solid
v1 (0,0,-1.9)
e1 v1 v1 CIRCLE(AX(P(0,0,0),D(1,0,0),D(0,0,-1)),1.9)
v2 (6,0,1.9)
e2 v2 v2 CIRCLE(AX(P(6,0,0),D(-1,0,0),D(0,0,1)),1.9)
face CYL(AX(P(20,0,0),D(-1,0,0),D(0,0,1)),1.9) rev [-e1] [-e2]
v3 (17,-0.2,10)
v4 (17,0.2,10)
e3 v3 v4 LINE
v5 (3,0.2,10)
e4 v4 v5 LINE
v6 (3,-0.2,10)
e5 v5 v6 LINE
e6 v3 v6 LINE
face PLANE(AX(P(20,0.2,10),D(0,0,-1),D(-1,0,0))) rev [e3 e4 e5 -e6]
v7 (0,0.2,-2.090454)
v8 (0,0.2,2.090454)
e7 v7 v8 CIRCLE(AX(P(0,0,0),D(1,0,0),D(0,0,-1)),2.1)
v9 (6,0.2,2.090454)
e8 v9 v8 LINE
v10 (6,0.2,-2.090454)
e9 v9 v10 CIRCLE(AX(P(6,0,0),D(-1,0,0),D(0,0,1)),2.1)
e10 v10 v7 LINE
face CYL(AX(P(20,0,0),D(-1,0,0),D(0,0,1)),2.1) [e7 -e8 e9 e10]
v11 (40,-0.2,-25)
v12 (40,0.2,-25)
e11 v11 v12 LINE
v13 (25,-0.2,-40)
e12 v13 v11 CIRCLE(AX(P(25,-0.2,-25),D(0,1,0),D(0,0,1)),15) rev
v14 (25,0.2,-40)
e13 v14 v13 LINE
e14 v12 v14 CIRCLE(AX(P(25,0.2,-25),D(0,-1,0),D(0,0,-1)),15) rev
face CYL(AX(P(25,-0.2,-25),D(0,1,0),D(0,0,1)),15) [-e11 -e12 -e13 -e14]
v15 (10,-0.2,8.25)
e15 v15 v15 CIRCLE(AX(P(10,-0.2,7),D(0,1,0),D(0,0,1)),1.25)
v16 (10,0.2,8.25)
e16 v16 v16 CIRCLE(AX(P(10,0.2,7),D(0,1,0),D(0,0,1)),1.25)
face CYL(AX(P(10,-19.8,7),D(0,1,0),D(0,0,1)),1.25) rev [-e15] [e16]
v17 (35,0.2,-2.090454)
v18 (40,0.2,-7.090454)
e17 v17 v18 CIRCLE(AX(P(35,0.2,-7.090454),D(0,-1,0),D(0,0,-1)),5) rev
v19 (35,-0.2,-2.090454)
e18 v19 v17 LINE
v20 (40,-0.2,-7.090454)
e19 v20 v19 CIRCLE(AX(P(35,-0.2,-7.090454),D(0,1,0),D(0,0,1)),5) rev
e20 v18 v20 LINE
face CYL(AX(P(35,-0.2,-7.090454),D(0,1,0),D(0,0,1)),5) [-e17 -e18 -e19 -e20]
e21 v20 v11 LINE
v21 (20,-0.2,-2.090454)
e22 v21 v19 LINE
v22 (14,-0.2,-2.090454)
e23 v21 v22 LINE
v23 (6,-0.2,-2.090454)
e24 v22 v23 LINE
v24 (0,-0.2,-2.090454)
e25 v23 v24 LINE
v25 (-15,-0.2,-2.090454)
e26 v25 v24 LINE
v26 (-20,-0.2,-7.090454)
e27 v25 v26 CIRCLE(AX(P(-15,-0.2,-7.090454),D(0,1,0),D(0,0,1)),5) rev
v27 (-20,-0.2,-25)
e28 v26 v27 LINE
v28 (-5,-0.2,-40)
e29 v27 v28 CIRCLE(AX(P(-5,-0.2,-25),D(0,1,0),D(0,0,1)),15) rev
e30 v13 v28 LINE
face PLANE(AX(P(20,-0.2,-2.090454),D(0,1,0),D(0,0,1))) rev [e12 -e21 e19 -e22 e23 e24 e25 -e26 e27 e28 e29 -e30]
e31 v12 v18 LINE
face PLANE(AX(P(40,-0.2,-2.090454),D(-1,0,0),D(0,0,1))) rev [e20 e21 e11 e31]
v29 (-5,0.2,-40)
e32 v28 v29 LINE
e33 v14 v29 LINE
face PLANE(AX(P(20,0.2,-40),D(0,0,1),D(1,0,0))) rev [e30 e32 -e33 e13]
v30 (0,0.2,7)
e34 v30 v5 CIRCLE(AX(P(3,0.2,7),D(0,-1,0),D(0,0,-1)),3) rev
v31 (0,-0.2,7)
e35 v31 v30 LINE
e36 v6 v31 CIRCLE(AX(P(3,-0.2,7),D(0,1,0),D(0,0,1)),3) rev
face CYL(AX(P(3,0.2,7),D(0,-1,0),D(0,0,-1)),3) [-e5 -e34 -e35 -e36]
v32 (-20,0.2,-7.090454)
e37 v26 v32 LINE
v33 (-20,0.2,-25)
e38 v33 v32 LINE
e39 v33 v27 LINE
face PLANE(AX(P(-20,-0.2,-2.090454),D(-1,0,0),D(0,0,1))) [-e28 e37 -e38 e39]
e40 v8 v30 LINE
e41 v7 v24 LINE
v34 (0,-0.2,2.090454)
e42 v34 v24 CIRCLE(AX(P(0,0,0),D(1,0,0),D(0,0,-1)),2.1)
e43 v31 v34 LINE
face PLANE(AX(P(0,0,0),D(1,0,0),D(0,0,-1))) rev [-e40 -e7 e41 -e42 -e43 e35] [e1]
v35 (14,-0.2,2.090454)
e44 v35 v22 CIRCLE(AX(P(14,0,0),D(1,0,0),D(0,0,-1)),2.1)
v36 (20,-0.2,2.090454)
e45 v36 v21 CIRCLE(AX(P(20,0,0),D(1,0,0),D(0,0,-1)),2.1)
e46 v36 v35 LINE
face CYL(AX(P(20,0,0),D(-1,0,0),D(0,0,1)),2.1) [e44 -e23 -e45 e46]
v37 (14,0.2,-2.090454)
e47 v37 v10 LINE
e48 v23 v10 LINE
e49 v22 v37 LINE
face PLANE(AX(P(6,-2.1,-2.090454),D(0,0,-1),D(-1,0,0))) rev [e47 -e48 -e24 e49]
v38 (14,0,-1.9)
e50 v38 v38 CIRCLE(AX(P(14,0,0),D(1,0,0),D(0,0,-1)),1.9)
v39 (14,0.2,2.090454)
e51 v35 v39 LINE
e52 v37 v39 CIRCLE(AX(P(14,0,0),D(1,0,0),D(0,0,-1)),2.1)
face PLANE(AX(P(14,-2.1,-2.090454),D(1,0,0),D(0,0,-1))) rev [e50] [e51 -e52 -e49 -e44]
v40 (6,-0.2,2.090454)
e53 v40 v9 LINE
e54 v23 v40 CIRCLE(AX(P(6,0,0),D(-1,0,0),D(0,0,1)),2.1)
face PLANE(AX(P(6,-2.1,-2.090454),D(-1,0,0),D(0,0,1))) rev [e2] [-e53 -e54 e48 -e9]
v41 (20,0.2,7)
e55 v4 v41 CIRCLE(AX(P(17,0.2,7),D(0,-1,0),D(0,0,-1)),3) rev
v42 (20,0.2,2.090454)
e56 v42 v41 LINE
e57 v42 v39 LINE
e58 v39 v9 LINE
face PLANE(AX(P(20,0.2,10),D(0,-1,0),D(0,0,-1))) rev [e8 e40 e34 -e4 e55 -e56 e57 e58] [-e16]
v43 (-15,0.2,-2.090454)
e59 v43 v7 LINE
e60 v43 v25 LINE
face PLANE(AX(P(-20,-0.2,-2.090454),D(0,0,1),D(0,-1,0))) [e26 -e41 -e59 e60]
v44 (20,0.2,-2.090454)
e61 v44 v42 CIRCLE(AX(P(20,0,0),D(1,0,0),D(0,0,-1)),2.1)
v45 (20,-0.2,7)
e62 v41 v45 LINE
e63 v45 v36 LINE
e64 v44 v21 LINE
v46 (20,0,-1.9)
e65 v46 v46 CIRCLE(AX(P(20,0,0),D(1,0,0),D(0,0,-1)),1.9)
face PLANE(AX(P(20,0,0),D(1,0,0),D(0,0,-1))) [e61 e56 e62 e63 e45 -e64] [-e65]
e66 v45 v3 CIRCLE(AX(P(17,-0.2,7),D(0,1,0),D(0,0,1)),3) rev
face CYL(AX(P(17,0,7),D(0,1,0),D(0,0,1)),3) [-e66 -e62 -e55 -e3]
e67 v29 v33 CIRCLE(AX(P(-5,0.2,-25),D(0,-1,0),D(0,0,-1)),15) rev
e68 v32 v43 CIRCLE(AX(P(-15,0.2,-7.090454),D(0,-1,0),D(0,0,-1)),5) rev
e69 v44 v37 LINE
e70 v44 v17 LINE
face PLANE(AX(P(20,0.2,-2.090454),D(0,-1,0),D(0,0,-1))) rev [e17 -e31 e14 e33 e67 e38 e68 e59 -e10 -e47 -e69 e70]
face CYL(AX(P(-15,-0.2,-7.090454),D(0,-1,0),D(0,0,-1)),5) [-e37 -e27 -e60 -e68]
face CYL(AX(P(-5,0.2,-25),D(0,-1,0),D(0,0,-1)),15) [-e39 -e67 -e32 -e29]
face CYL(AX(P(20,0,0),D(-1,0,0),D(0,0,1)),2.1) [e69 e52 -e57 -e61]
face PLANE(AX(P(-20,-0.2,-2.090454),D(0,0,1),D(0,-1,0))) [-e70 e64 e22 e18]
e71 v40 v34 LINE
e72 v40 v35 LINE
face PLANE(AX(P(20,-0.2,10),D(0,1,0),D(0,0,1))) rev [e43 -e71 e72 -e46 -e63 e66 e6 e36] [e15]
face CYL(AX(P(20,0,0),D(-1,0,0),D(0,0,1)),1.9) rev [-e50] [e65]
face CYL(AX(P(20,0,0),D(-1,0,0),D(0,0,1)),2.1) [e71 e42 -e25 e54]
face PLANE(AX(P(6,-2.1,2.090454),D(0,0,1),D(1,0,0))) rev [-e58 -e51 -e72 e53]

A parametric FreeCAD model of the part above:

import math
import FreeCAD as App
import Part
import Sketcher
Q = App.Units.Quantity


def edges_at(feature, points):
    """Names of the edges that pass closest to the given points."""
    edges = feature.Shape.Edges
    near = lambda p: min(range(len(edges)), key=lambda i: edges[i].distToShape(Part.Vertex(*p))[0])
    return sorted({f"Edge{near(p) + 1}" for p in points})

doc = App.newDocument("Part")
params = doc.addObject("Spreadsheet::Sheet", "Params")
for row, (alias, value) in enumerate([
    ("sketch1_diameter", "3.8 mm"),
    ("sketch1_radius", "2.1 mm"),
    ("sketch1_width", "0.4 mm"),
    ("pad1_length", "20 mm"),
    ("sketch2_width", "0.4 mm"),
    ("pad2_length", "20 mm"),
    ("pad2_length2", "40 mm"),
    ("fillet_radius", "15 mm"),
    ("fillet2_radius", "5 mm"),
    ("fillet3_radius", "3 mm"),
    ("sketch3_radius", "1.25 mm"),
    ("pocket1_length", "20 mm"),
    ("sketch4_width", "8 mm"),
], start=1):
    params.set(f"A{row}", alias)
    params.set(f"B{row}", "=" + value)
    params.setAlias(f"B{row}", alias)

body = doc.addObject("PartDesign::Body", "Body")

# Sketch on YZ plane
sketch1 = body.newObject("Sketcher::SketchObject", "Sketch")
sketch1.AttachmentSupport = (doc.getObject("YZ_Plane"), [""])
sketch1.MapMode = "FlatFace"
sketch1.addGeometry(Part.LineSegment(App.Vector(-0.2, 10, 0), App.Vector(-0.2, 2.090454, 0)), False)
sketch1.addGeometry(Part.ArcOfCircle(Part.Circle(App.Vector(0, 0, 0), App.Vector(0, 0, 1), 2.1), math.radians(95.465024), math.radians(264.534976)), False)
sketch1.addGeometry(Part.LineSegment(App.Vector(-0.2, -2.090454, 0), App.Vector(-0.2, -40, 0)), False)
sketch1.addGeometry(Part.LineSegment(App.Vector(-0.2, -40, 0), App.Vector(0.2, -40, 0)), False)
sketch1.addGeometry(Part.LineSegment(App.Vector(0.2, -40, 0), App.Vector(0.2, -2.090454, 0)), False)
sketch1.addGeometry(Part.ArcOfCircle(Part.Circle(App.Vector(0, 0, 0), App.Vector(0, 0, 1), 2.1), math.radians(-84.534976), math.radians(84.534976)), False)
sketch1.addGeometry(Part.LineSegment(App.Vector(0.2, 2.090454, 0), App.Vector(0.2, 10, 0)), False)
sketch1.addGeometry(Part.LineSegment(App.Vector(0.2, 10, 0), App.Vector(-0.2, 10, 0)), False)
sketch1.addGeometry(Part.Circle(App.Vector(0, 0, 0), App.Vector(0, 0, 1), 1.9), False)
sketch1.addConstraint(Sketcher.Constraint("Coincident", 0, 2, 1, 1))
sketch1.addConstraint(Sketcher.Constraint("Coincident", 1, 2, 2, 1))
sketch1.addConstraint(Sketcher.Constraint("Coincident", 2, 2, 3, 1))
sketch1.addConstraint(Sketcher.Constraint("Coincident", 3, 2, 4, 1))
sketch1.addConstraint(Sketcher.Constraint("Coincident", 4, 2, 5, 1))
sketch1.addConstraint(Sketcher.Constraint("Coincident", 5, 2, 6, 1))
sketch1.addConstraint(Sketcher.Constraint("Coincident", 6, 2, 7, 1))
sketch1.addConstraint(Sketcher.Constraint("Coincident", 7, 2, 0, 1))
sketch1.addConstraint(Sketcher.Constraint("Vertical", 0))
sketch1.addConstraint(Sketcher.Constraint("Vertical", 2))
sketch1.addConstraint(Sketcher.Constraint("Horizontal", 3))
sketch1.addConstraint(Sketcher.Constraint("Vertical", 4))
sketch1.addConstraint(Sketcher.Constraint("Vertical", 6))
sketch1.addConstraint(Sketcher.Constraint("Horizontal", 7))
sketch1.addConstraint(Sketcher.Constraint("Coincident", 1, 3, -1, 1))
sketch1.addConstraint(Sketcher.Constraint("Coincident", 5, 3, -1, 1))
sketch1.addConstraint(Sketcher.Constraint("Coincident", 8, 3, -1, 1))
sketch1.addConstraint(Sketcher.Constraint("Equal", 1, 5))
sketch1.addConstraint(Sketcher.Constraint("Horizontal", 1, 2, 4, 2))
sketch1.addConstraint(Sketcher.Constraint("Horizontal", 0, 2, 5, 2))
sketch1.addConstraint(Sketcher.Constraint("Vertical", 0, 2, 1, 2))
sketch1.addConstraint(Sketcher.Constraint("Diameter", 8, Q("3.8 mm")))
sketch1.addConstraint(Sketcher.Constraint("Radius", 1, Q("2.1 mm")))
sketch1.addConstraint(Sketcher.Constraint("DistanceX", 3, 1, 3, 2, Q("0.4 mm")))
sketch1.addConstraint(Sketcher.Constraint("DistanceY", 2, 2, -1, 1, Q("40 mm")))
sketch1.addConstraint(Sketcher.Constraint("DistanceY", -1, 1, 6, 2, Q("10 mm")))
sketch1.setExpression("Constraints[21]", "Params.sketch1_diameter")
sketch1.setExpression("Constraints[22]", "Params.sketch1_radius")
sketch1.setExpression("Constraints[23]", "Params.sketch1_width")
pad1 = body.newObject("PartDesign::Pad", "Pad")
pad1.Profile = sketch1
pad1.setExpression("Length", "Params.pad1_length")

# Sketch on YZ plane
sketch2 = body.newObject("Sketcher::SketchObject", "Sketch001")
sketch2.AttachmentSupport = (doc.getObject("YZ_Plane"), [""])
sketch2.MapMode = "FlatFace"
sketch2.AttachmentOffset = App.Placement(App.Vector(0, 0, 20), App.Rotation())
sketch2.addGeometry(Part.LineSegment(App.Vector(0.2, -2.090454, 0), App.Vector(-0.2, -2.090454, 0)), False)
sketch2.addGeometry(Part.LineSegment(App.Vector(-0.2, -2.090454, 0), App.Vector(-0.2, -40, 0)), False)
sketch2.addGeometry(Part.LineSegment(App.Vector(-0.2, -40, 0), App.Vector(0.2, -40, 0)), False)
sketch2.addGeometry(Part.LineSegment(App.Vector(0.2, -40, 0), App.Vector(0.2, -2.090454, 0)), False)
sketch2.addConstraint(Sketcher.Constraint("Coincident", 0, 2, 1, 1))
sketch2.addConstraint(Sketcher.Constraint("Coincident", 1, 2, 2, 1))
sketch2.addConstraint(Sketcher.Constraint("Coincident", 2, 2, 3, 1))
sketch2.addConstraint(Sketcher.Constraint("Coincident", 3, 2, 0, 1))
sketch2.addConstraint(Sketcher.Constraint("Horizontal", 0))
sketch2.addConstraint(Sketcher.Constraint("Vertical", 1))
sketch2.addConstraint(Sketcher.Constraint("Horizontal", 2))
sketch2.addConstraint(Sketcher.Constraint("Vertical", 3))
sketch2.addConstraint(Sketcher.Constraint("DistanceX", 0, 2, 0, 1, Q("0.4 mm")))
sketch2.addConstraint(Sketcher.Constraint("DistanceY", 1, 2, -1, 1, Q("40 mm")))
sketch2.addConstraint(Sketcher.Constraint("DistanceX", 0, 2, -1, 1, Q("0.2 mm")))
sketch2.addConstraint(Sketcher.Constraint("DistanceY", 1, 2, 1, 1, Q("37.909546 mm")))
sketch2.setExpression("Constraints[8]", "Params.sketch2_width")
pad2 = body.newObject("PartDesign::Pad", "Pad001")
pad2.Profile = sketch2
pad2.Type = "TwoLengths"
pad2.setExpression("Length", "Params.pad2_length")
pad2.setExpression("Length2", "Params.pad2_length2")
doc.recompute()

fillet = body.newObject("PartDesign::Fillet", "Fillet")
fillet.Base = (pad2, edges_at(pad2, [(-20, 0, -40), (40, 0, -40)]))
fillet.setExpression("Radius", "Params.fillet_radius")
doc.recompute()

fillet2 = body.newObject("PartDesign::Fillet", "Fillet001")
fillet2.Base = (fillet, edges_at(fillet, [(-20, 0, -2.09), (40, 0, -2.09)]))
fillet2.setExpression("Radius", "Params.fillet2_radius")
doc.recompute()

fillet3 = body.newObject("PartDesign::Fillet", "Fillet002")
fillet3.Base = (fillet2, edges_at(fillet2, [(0, 0, 10), (20, 0, 10)]))
fillet3.setExpression("Radius", "Params.fillet3_radius")

# Sketch on XZ plane
sketch3 = body.newObject("Sketcher::SketchObject", "Sketch002")
sketch3.AttachmentSupport = (doc.getObject("XZ_Plane"), [""])
sketch3.MapMode = "FlatFace"
sketch3.AttachmentOffset = App.Placement(App.Vector(0, 0, -0.2), App.Rotation())
sketch3.addGeometry(Part.ArcOfCircle(Part.Circle(App.Vector(10, 7, 0), App.Vector(0, 0, 1), 1.25), math.radians(-90), math.radians(0)), False)
sketch3.addGeometry(Part.ArcOfCircle(Part.Circle(App.Vector(10, 7, 0), App.Vector(0, 0, 1), 1.25), math.radians(90), math.radians(270)), False)
sketch3.addGeometry(Part.ArcOfCircle(Part.Circle(App.Vector(10, 7, 0), App.Vector(0, 0, 1), 1.25), math.radians(0), math.radians(90)), False)
sketch3.addConstraint(Sketcher.Constraint("Tangent", 0, 1, 1, 2))
sketch3.addConstraint(Sketcher.Constraint("Tangent", 1, 1, 2, 2))
sketch3.addConstraint(Sketcher.Constraint("Tangent", 2, 1, 0, 2))
sketch3.addConstraint(Sketcher.Constraint("Horizontal", 1, 3, 2, 1))
sketch3.addConstraint(Sketcher.Constraint("Vertical", 2, 3, 0, 1))
sketch3.addConstraint(Sketcher.Constraint("Vertical", 0, 1, 1, 1))
sketch3.addConstraint(Sketcher.Constraint("Radius", 0, Q("1.25 mm")))
sketch3.addConstraint(Sketcher.Constraint("DistanceX", -1, 1, 0, 3, Q("10 mm")))
sketch3.addConstraint(Sketcher.Constraint("DistanceY", -1, 1, 0, 3, Q("7 mm")))
sketch3.setExpression("Constraints[6]", "Params.sketch3_radius")
pocket1 = body.newObject("PartDesign::Pocket", "Pocket")
pocket1.Profile = sketch3
pocket1.setExpression("Length", "Params.pocket1_length")
pocket1.Reversed = True

# Sketch on XZ plane
sketch4 = body.newObject("Sketcher::SketchObject", "Sketch003")
sketch4.AttachmentSupport = (doc.getObject("XZ_Plane"), [""])
sketch4.MapMode = "FlatFace"
sketch4.AttachmentOffset = App.Placement(App.Vector(0, 0, -0.2), App.Rotation())
sketch4.addGeometry(Part.LineSegment(App.Vector(6, -2.090454, 0), App.Vector(6, 2.090454, 0)), False)
sketch4.addGeometry(Part.LineSegment(App.Vector(6, 2.090454, 0), App.Vector(14, 2.090454, 0)), False)
sketch4.addGeometry(Part.LineSegment(App.Vector(14, 2.090454, 0), App.Vector(14, -2.090454, 0)), False)
sketch4.addGeometry(Part.LineSegment(App.Vector(14, -2.090454, 0), App.Vector(6, -2.090454, 0)), False)
sketch4.addConstraint(Sketcher.Constraint("Coincident", 0, 2, 1, 1))
sketch4.addConstraint(Sketcher.Constraint("Coincident", 1, 2, 2, 1))
sketch4.addConstraint(Sketcher.Constraint("Coincident", 2, 2, 3, 1))
sketch4.addConstraint(Sketcher.Constraint("Coincident", 3, 2, 0, 1))
sketch4.addConstraint(Sketcher.Constraint("Vertical", 0))
sketch4.addConstraint(Sketcher.Constraint("Horizontal", 1))
sketch4.addConstraint(Sketcher.Constraint("Vertical", 2))
sketch4.addConstraint(Sketcher.Constraint("Horizontal", 3))
sketch4.addConstraint(Sketcher.Constraint("DistanceX", 1, 1, 1, 2, Q("8 mm")))
sketch4.addConstraint(Sketcher.Constraint("DistanceX", -1, 1, 0, 2, Q("6 mm")))
sketch4.addConstraint(Sketcher.Constraint("DistanceY", 0, 1, 0, 2, Q("4.180909 mm")))
sketch4.addConstraint(Sketcher.Constraint("DistanceY", -1, 1, 0, 2, Q("2.090454 mm")))
sketch4.setExpression("Constraints[8]", "Params.sketch4_width")
pocket2 = body.newObject("PartDesign::Pocket", "Pocket001")
pocket2.Profile = sketch4
pocket2.Type = "ThroughAll"
pocket2.Midplane = True

doc.recompute()
